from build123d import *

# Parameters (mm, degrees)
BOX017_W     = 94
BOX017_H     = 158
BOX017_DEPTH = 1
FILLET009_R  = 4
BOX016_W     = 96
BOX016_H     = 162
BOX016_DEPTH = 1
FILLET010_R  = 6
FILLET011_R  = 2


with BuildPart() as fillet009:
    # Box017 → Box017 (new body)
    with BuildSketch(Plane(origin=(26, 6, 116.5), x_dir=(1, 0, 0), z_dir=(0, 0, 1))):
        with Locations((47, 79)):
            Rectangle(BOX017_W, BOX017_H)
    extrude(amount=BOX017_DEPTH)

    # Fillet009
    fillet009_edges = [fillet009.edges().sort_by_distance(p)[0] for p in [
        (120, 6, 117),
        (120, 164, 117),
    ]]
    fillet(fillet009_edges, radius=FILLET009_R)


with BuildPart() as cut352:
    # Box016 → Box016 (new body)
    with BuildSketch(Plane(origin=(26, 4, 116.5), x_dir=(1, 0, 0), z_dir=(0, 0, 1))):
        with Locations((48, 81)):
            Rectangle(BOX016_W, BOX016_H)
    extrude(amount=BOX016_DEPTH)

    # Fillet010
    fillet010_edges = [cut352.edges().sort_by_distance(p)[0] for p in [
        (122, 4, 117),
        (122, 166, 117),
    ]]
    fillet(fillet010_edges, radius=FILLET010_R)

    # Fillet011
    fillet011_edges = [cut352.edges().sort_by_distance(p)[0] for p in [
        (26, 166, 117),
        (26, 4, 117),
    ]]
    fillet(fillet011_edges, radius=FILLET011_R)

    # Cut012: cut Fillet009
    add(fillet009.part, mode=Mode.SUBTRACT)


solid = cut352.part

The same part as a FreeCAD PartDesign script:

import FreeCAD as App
import Part
import Sketcher


def edges_at(feature, points):
    """Names of the edges that pass closest to the given points."""
    edges = feature.Shape.Edges
    near = lambda p: min(range(len(edges)), key=lambda i: edges[i].distToShape(Part.Vertex(*p))[0])
    return sorted({f"Edge{near(p) + 1}" for p in points})


def add_polygon(sketch, points):
    """Adds a closed chain of lines whose ends are joined by coincident constraints."""
    first, n = sketch.GeometryCount, len(points)
    for a, b in zip(points, points[1:] + points[:1]):
        sketch.addGeometry(Part.LineSegment(App.Vector(*a, 0), App.Vector(*b, 0)), False)
    for i in range(n):
        sketch.addConstraint(Sketcher.Constraint("Coincident", first + i, 2, first + (i + 1) % n, 1))

doc = App.newDocument("Part")
body = doc.addObject("PartDesign::Body", "Body")

# Sketch on XY plane
sketch1 = doc.addObject("Sketcher::SketchObject", "Sketch")
body.addObject(sketch1)
sketch1.AttachmentSupport = (doc.XY_Plane, [""])
sketch1.MapMode = "FlatFace"
sketch1.AttachmentOffset = App.Placement(App.Vector(0, 0, 116.5), App.Rotation())
add_polygon(sketch1, [(26, 164), (26, 6), (120, 6), (120, 164)])  # lines 0-3
sketch1.addConstraint([
    Sketcher.Constraint("Vertical", 0),
    Sketcher.Constraint("Horizontal", 1),
    Sketcher.Constraint("Vertical", 2),
    Sketcher.Constraint("Horizontal", 3),
    Sketcher.Constraint("DistanceX", 1, 1, 1, 2, 94.0),
    Sketcher.Constraint("DistanceY", 0, 2, 0, 1, 158.0),
    Sketcher.Constraint("DistanceX", -1, 1, 0, 2, 26.0),
    Sketcher.Constraint("DistanceY", -1, 1, 0, 2, 6.0),
])
pad1 = doc.addObject("PartDesign::Pad", "Pad")
body.addObject(pad1)
pad1.Profile = sketch1
pad1.Length = 1
doc.recompute()

fillet = doc.addObject("PartDesign::Fillet", "Fillet")
body.addObject(fillet)
fillet.Base = (pad1, edges_at(pad1, [(120, 6, 117), (120, 164, 117)]))
fillet.Radius = 4
body2 = doc.addObject("PartDesign::Body", "Body001")

# Sketch on XY plane
sketch2 = doc.addObject("Sketcher::SketchObject", "Sketch001")
body2.addObject(sketch2)
sketch2.AttachmentSupport = (doc.getObject("XY_Plane001"), [""])
sketch2.MapMode = "FlatFace"
sketch2.AttachmentOffset = App.Placement(App.Vector(0, 0, 116.5), App.Rotation())
add_polygon(sketch2, [(26, 166), (26, 4), (122, 4), (122, 166)])  # lines 0-3
sketch2.addConstraint([
    Sketcher.Constraint("Vertical", 0),
    Sketcher.Constraint("Horizontal", 1),
    Sketcher.Constraint("Vertical", 2),
    Sketcher.Constraint("Horizontal", 3),
    Sketcher.Constraint("DistanceX", 1, 1, 1, 2, 96.0),
    Sketcher.Constraint("DistanceY", 0, 2, 0, 1, 162.0),
    Sketcher.Constraint("DistanceX", -1, 1, 0, 2, 26.0),
    Sketcher.Constraint("DistanceY", -1, 1, 0, 2, 4.0),
])
pad2 = doc.addObject("PartDesign::Pad", "Pad001")
body2.addObject(pad2)
pad2.Profile = sketch2
pad2.Length = 1
doc.recompute()

fillet2 = doc.addObject("PartDesign::Fillet", "Fillet001")
body2.addObject(fillet2)
fillet2.Base = (pad2, edges_at(pad2, [(122, 4, 117), (122, 166, 117)]))
fillet2.Radius = 6
doc.recompute()

fillet3 = doc.addObject("PartDesign::Fillet", "Fillet002")
body2.addObject(fillet3)
fillet3.Base = (fillet2, edges_at(fillet2, [(26, 166, 117), (26, 4, 117)]))
fillet3.Radius = 2
doc.recompute()

boolean = doc.addObject("PartDesign::Boolean", "Boolean")
body2.addObject(boolean)
boolean.Type = "Cut"
boolean.addObjects([body])

doc.recompute()
